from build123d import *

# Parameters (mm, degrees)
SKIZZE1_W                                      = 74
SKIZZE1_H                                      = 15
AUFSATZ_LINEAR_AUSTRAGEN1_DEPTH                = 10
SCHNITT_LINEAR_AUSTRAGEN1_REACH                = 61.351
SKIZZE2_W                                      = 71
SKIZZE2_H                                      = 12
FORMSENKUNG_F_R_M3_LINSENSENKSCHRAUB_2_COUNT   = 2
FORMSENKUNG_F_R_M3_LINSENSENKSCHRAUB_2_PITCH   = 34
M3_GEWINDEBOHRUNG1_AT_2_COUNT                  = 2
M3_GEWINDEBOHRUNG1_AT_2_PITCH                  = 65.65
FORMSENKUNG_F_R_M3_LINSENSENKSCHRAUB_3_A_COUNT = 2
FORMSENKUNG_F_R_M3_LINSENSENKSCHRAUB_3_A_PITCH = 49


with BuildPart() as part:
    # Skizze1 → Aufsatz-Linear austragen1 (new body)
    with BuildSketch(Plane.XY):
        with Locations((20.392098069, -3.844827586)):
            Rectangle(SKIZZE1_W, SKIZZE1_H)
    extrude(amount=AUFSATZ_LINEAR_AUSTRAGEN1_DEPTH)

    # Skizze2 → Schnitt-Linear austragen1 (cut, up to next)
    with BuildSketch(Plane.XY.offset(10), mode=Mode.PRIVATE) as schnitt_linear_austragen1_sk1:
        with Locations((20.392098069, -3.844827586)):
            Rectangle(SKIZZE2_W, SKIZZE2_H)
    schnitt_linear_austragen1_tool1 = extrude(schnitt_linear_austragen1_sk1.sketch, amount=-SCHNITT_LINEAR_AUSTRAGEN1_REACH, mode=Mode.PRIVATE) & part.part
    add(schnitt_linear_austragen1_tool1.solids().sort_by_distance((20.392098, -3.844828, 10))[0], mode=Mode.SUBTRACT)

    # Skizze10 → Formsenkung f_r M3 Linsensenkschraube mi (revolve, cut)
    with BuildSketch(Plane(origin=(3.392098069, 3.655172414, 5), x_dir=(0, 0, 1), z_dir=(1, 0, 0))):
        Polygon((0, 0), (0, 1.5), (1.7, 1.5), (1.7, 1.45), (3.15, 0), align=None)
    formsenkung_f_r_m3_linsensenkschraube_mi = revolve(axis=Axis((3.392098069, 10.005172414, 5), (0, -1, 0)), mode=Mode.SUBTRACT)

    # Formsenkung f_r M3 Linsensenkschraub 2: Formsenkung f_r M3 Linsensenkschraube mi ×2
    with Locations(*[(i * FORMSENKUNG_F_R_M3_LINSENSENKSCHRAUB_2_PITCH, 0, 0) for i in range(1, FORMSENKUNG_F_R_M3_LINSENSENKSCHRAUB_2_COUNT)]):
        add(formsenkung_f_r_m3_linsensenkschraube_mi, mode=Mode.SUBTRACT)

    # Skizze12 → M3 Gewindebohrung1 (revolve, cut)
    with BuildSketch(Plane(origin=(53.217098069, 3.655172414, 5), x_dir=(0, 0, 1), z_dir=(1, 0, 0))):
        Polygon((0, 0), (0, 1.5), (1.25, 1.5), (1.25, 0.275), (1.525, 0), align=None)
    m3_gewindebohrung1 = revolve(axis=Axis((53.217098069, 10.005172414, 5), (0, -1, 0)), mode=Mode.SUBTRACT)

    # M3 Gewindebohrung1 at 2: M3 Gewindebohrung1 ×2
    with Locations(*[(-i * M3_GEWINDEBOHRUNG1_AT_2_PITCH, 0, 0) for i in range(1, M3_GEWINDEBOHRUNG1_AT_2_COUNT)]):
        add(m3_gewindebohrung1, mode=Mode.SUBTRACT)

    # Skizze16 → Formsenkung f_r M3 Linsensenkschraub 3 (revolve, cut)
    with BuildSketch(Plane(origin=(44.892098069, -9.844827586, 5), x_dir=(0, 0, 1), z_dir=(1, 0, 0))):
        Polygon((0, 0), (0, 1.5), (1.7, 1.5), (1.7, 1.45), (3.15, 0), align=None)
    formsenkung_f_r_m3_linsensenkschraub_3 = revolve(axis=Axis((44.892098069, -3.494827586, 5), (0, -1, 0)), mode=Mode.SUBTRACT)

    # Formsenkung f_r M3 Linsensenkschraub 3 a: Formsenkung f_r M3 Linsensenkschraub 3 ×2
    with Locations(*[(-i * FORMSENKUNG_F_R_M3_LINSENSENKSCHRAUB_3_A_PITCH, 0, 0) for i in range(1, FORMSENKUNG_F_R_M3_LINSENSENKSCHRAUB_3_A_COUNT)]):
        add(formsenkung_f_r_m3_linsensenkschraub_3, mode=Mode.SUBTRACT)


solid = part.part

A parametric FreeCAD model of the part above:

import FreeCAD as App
import Part
import Sketcher

V = App.Vector
Q = App.Units.Quantity

doc = App.newDocument("Part")
params = doc.addObject("Spreadsheet::Sheet", "Params")
for row, (alias, value) in enumerate([
    ("sketch1_width", "74 mm"),
    ("sketch1_height", "15 mm"),
    ("pad1_length", "10 mm"),
    ("sketch2_width", "71 mm"),
    ("sketch2_height", "12 mm"),
    ("sketch3_width", "1.5 mm"),
    ("sketch3_height", "1.7 mm"),
    ("sketch3_width2", "0.05 mm"),
    ("groove_angle", "360 deg"),
    ("linearpattern_pitch", "34 mm"),
    ("sketch4_width", "1.5 mm"),
    ("sketch4_height", "1.25 mm"),
    ("groove2_angle", "360 deg"),
    ("linearpattern2_pitch", "65.65 mm"),
    ("sketch5_width", "1.5 mm"),
    ("sketch5_height", "1.7 mm"),
    ("sketch5_width2", "0.05 mm"),
    ("groove3_angle", "360 deg"),
    ("linearpattern3_pitch", "49 mm"),
], start=1):
    params.set(f"A{row}", alias)
    params.set(f"B{row}", "=" + value)
    params.setAlias(f"B{row}", alias)

body = doc.addObject("PartDesign::Body", "Body")

sketch1 = body.newObject("Sketcher::SketchObject", "Sketch")
sketch1.AttachmentSupport = (doc.getObject("XY_Plane"), [""])
sketch1.MapMode = "FlatFace"
sketch1.addGeometry([
    Part.LineSegment(V(-17, 4, 0), V(-17, -11, 0)),
    Part.LineSegment(V(-17, -11, 0), V(57, -11, 0)),
    Part.LineSegment(V(57, -11, 0), V(57, 4, 0)),
    Part.LineSegment(V(57, 4, 0), V(-17, 4, 0)),
], False)
sketch1.addConstraint([
    Sketcher.Constraint("Coincident", 0, 2, 1, 1),
    Sketcher.Constraint("Coincident", 1, 2, 2, 1),
    Sketcher.Constraint("Coincident", 2, 2, 3, 1),
    Sketcher.Constraint("Coincident", 3, 2, 0, 1),
    Sketcher.Constraint("Vertical", 0),
    Sketcher.Constraint("Horizontal", 1),
    Sketcher.Constraint("Vertical", 2),
    Sketcher.Constraint("Horizontal", 3),
    Sketcher.Constraint("DistanceX", 1, 1, 1, 2, Q("74 mm")),
    Sketcher.Constraint("DistanceY", 0, 2, 0, 1, Q("15 mm")),
    Sketcher.Constraint("DistanceX", 0, 2, -1, 1, Q("16.607902 mm")),
    Sketcher.Constraint("DistanceY", 0, 2, -1, 1, Q("11.344828 mm")),
])
sketch1.setExpression("Constraints[8]", "Params.sketch1_width")
sketch1.setExpression("Constraints[9]", "Params.sketch1_height")
pad1 = body.newObject("PartDesign::Pad", "Pad")
pad1.Profile = sketch1
pad1.setExpression("Length", "Params.pad1_length")

sketch2 = body.newObject("Sketcher::SketchObject", "Sketch001")
sketch2.AttachmentSupport = (doc.getObject("XY_Plane"), [""])
sketch2.MapMode = "FlatFace"
sketch2.AttachmentOffset = App.Placement(V(0, 0, 10), App.Rotation())
sketch2.addGeometry([
    Part.LineSegment(V(-15, 2, 0), V(-15, -10, 0)),
    Part.LineSegment(V(-15, -10, 0), V(56, -10, 0)),
    Part.LineSegment(V(56, -10, 0), V(56, 2, 0)),
    Part.LineSegment(V(56, 2, 0), V(-15, 2, 0)),
], False)
sketch2.addConstraint([
    Sketcher.Constraint("Coincident", 0, 2, 1, 1),
    Sketcher.Constraint("Coincident", 1, 2, 2, 1),
    Sketcher.Constraint("Coincident", 2, 2, 3, 1),
    Sketcher.Constraint("Coincident", 3, 2, 0, 1),
    Sketcher.Constraint("Vertical", 0),
    Sketcher.Constraint("Horizontal", 1),
    Sketcher.Constraint("Vertical", 2),
    Sketcher.Constraint("Horizontal", 3),
    Sketcher.Constraint("DistanceX", 1, 1, 1, 2, Q("71 mm")),
    Sketcher.Constraint("DistanceY", 0, 2, 0, 1, Q("12 mm")),
    Sketcher.Constraint("DistanceX", 0, 2, -1, 1, Q("15.107902 mm")),
    Sketcher.Constraint("DistanceY", 0, 2, -1, 1, Q("9.844828 mm")),
])
sketch2.setExpression("Constraints[8]", "Params.sketch2_width")
sketch2.setExpression("Constraints[9]", "Params.sketch2_height")
pocket1 = body.newObject("PartDesign::Pocket", "Pocket")
pocket1.Profile = sketch2
pocket1.Type = "UpToFirst"

sketch3 = body.newObject("Sketcher::SketchObject", "Sketch002")
sketch3.AttachmentSupport = (doc.getObject("YZ_Plane"), [""])
sketch3.MapMode = "FlatFace"
sketch3.AttachmentOffset = App.Placement(V(0, 0, 3.392098), App.Rotation())
sketch3.addGeometry([
    Part.LineSegment(V(2.16, 5, 0), V(3.66, 5, 0)),
    Part.LineSegment(V(3.66, 5, 0), V(3.66, 8.15, 0)),
    Part.LineSegment(V(3.66, 8.15, 0), V(2.21, 6.7, 0)),
    Part.LineSegment(V(2.21, 6.7, 0), V(2.16, 6.7, 0)),
    Part.LineSegment(V(2.16, 6.7, 0), V(2.16, 5, 0)),
], False)
sketch3.addGeometry(Part.LineSegment(V(3.66, 5, 0), V(2.16, 5, 0)), True)
sketch3.addConstraint([
    Sketcher.Constraint("Coincident", 0, 2, 1, 1),
    Sketcher.Constraint("Coincident", 1, 2, 2, 1),
    Sketcher.Constraint("Coincident", 2, 2, 3, 1),
    Sketcher.Constraint("Coincident", 3, 2, 4, 1),
    Sketcher.Constraint("Coincident", 4, 2, 0, 1),
    Sketcher.Constraint("Horizontal", 0),
    Sketcher.Constraint("Vertical", 1),
    Sketcher.Constraint("Horizontal", 3),
    Sketcher.Constraint("Vertical", 4),
    Sketcher.Constraint("Horizontal", 5),
    Sketcher.Constraint("Coincident", 5, 1, 0, 2),
    Sketcher.Constraint("Vertical", 3, 2, 5, 2),
    Sketcher.Constraint("Angle", 2, Q("-135 deg")),
    Sketcher.Constraint("DistanceX", 0, 1, 0, 2, Q("1.5 mm")),
    Sketcher.Constraint("DistanceY", 4, 2, 4, 1, Q("1.7 mm")),
    Sketcher.Constraint("DistanceY", -1, 1, 0, 2, Q("5 mm")),
    Sketcher.Constraint("DistanceX", 3, 2, 3, 1, Q("0.05 mm")),
    Sketcher.Constraint("DistanceX", -1, 1, 0, 2, Q("3.655172 mm")),
])
sketch3.setExpression("Constraints[13]", "Params.sketch3_width")
sketch3.setExpression("Constraints[14]", "Params.sketch3_height")
sketch3.setExpression("Constraints[16]", "Params.sketch3_width2")
groove = body.newObject("PartDesign::Groove", "Groove")
groove.Profile = sketch3
groove.ReferenceAxis = (sketch3, ["Axis0"])
groove.setExpression("Angle", "Params.groove_angle")
doc.recompute()

linearpattern = body.newObject("PartDesign::LinearPattern", "LinearPattern")
linearpattern.Originals = [groove]
linearpattern.Direction = (doc.getObject("X_Axis"), [""])
linearpattern.Mode = "offset"
linearpattern.setExpression("Offset", "Params.linearpattern_pitch")
linearpattern.Occurrences = 2
body.Tip = linearpattern

sketch4 = body.newObject("Sketcher::SketchObject", "Sketch003")
sketch4.AttachmentSupport = (doc.getObject("YZ_Plane"), [""])
sketch4.MapMode = "FlatFace"
sketch4.AttachmentOffset = App.Placement(V(0, 0, 53.217098), App.Rotation())
sketch4.addGeometry([
    Part.LineSegment(V(2.16, 5, 0), V(3.66, 5, 0)),
    Part.LineSegment(V(3.66, 5, 0), V(3.66, 6.53, 0)),
    Part.LineSegment(V(3.66, 6.53, 0), V(3.38, 6.25, 0)),
    Part.LineSegment(V(3.38, 6.25, 0), V(2.16, 6.25, 0)),
    Part.LineSegment(V(2.16, 6.25, 0), V(2.16, 5, 0)),
], False)
sketch4.addGeometry(Part.LineSegment(V(3.66, 5, 0), V(2.16, 5, 0)), True)
sketch4.addConstraint([
    Sketcher.Constraint("Coincident", 0, 2, 1, 1),
    Sketcher.Constraint("Coincident", 1, 2, 2, 1),
    Sketcher.Constraint("Coincident", 2, 2, 3, 1),
    Sketcher.Constraint("Coincident", 3, 2, 4, 1),
    Sketcher.Constraint("Coincident", 4, 2, 0, 1),
    Sketcher.Constraint("Horizontal", 0),
    Sketcher.Constraint("Vertical", 1),
    Sketcher.Constraint("Horizontal", 3),
    Sketcher.Constraint("Vertical", 4),
    Sketcher.Constraint("Horizontal", 5),
    Sketcher.Constraint("Coincident", 5, 1, 0, 2),
    Sketcher.Constraint("Vertical", 3, 2, 5, 2),
    Sketcher.Constraint("Angle", 2, Q("-135 deg")),
    Sketcher.Constraint("DistanceX", 0, 1, 0, 2, Q("1.5 mm")),
    Sketcher.Constraint("DistanceY", -1, 1, 0, 2, Q("5 mm")),
    Sketcher.Constraint("DistanceY", 4, 2, 4, 1, Q("1.25 mm")),
    Sketcher.Constraint("DistanceX", 3, 2, 3, 1, Q("1.225 mm")),
    Sketcher.Constraint("DistanceX", -1, 1, 0, 2, Q("3.655172 mm")),
])
sketch4.setExpression("Constraints[13]", "Params.sketch4_width")
sketch4.setExpression("Constraints[15]", "Params.sketch4_height")
groove2 = body.newObject("PartDesign::Groove", "Groove001")
groove2.Profile = sketch4
groove2.ReferenceAxis = (sketch4, ["Axis0"])
groove2.setExpression("Angle", "Params.groove2_angle")
doc.recompute()

linearpattern2 = body.newObject("PartDesign::LinearPattern", "LinearPattern001")
linearpattern2.Originals = [groove2]
linearpattern2.Direction = (doc.getObject("X_Axis"), [""])
linearpattern2.Mode = "offset"
linearpattern2.setExpression("Offset", "Params.linearpattern2_pitch")
linearpattern2.Occurrences = 2
linearpattern2.Reversed = True
body.Tip = linearpattern2

sketch5 = body.newObject("Sketcher::SketchObject", "Sketch004")
sketch5.AttachmentSupport = (doc.getObject("YZ_Plane"), [""])
sketch5.MapMode = "FlatFace"
sketch5.AttachmentOffset = App.Placement(V(0, 0, 44.892098), App.Rotation())
sketch5.addGeometry([
    Part.LineSegment(V(-11.345, 5, 0), V(-9.845, 5, 0)),
    Part.LineSegment(V(-9.845, 5, 0), V(-9.845, 8.15, 0)),
    Part.LineSegment(V(-9.845, 8.15, 0), V(-11.295, 6.7, 0)),
    Part.LineSegment(V(-11.295, 6.7, 0), V(-11.345, 6.7, 0)),
    Part.LineSegment(V(-11.345, 6.7, 0), V(-11.345, 5, 0)),
], False)
sketch5.addGeometry(Part.LineSegment(V(-9.845, 5, 0), V(-11.345, 5, 0)), True)
sketch5.addConstraint([
    Sketcher.Constraint("Coincident", 0, 2, 1, 1),
    Sketcher.Constraint("Coincident", 1, 2, 2, 1),
    Sketcher.Constraint("Coincident", 2, 2, 3, 1),
    Sketcher.Constraint("Coincident", 3, 2, 4, 1),
    Sketcher.Constraint("Coincident", 4, 2, 0, 1),
    Sketcher.Constraint("Horizontal", 0),
    Sketcher.Constraint("Vertical", 1),
    Sketcher.Constraint("Horizontal", 3),
    Sketcher.Constraint("Vertical", 4),
    Sketcher.Constraint("Horizontal", 5),
    Sketcher.Constraint("Coincident", 5, 1, 0, 2),
    Sketcher.Constraint("Vertical", 3, 2, 5, 2),
    Sketcher.Constraint("Angle", 2, Q("-135 deg")),
    Sketcher.Constraint("DistanceX", 0, 1, 0, 2, Q("1.5 mm")),
    Sketcher.Constraint("DistanceY", 4, 2, 4, 1, Q("1.7 mm")),
    Sketcher.Constraint("DistanceY", -1, 1, 0, 2, Q("5 mm")),
    Sketcher.Constraint("DistanceX", 3, 2, 3, 1, Q("0.05 mm")),
    Sketcher.Constraint("DistanceX", 0, 2, -1, 1, Q("9.844828 mm")),
])
sketch5.setExpression("Constraints[13]", "Params.sketch5_width")
sketch5.setExpression("Constraints[14]", "Params.sketch5_height")
sketch5.setExpression("Constraints[16]", "Params.sketch5_width2")
groove3 = body.newObject("PartDesign::Groove", "Groove002")
groove3.Profile = sketch5
groove3.ReferenceAxis = (sketch5, ["Axis0"])
groove3.setExpression("Angle", "Params.groove3_angle")
doc.recompute()

linearpattern3 = body.newObject("PartDesign::LinearPattern", "LinearPattern002")
linearpattern3.Originals = [groove3]
linearpattern3.Direction = (doc.getObject("X_Axis"), [""])
linearpattern3.Mode = "offset"
linearpattern3.setExpression("Offset", "Params.linearpattern3_pitch")
linearpattern3.Occurrences = 2
linearpattern3.Reversed = True
body.Tip = linearpattern3

doc.recompute()
